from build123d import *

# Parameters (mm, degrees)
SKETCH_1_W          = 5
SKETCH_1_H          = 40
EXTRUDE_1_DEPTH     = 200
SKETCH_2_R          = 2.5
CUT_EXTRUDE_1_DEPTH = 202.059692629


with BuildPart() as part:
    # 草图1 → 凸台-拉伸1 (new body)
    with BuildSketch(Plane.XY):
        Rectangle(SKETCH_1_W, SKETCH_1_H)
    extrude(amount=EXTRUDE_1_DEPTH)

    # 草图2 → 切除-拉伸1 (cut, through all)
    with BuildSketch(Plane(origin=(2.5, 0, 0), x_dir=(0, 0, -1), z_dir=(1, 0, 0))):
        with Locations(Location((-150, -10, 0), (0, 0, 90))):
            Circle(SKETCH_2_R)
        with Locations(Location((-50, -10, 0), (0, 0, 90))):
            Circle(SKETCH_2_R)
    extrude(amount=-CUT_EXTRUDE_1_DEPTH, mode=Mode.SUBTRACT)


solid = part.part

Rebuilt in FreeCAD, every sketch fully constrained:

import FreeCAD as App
import Part
import Sketcher
from FreeCAD import Vector


def add_polygon(sketch, points):
    """Adds a closed chain of lines whose ends are joined by coincident constraints."""
    first, n = sketch.GeometryCount, len(points)
    for a, b in zip(points, points[1:] + points[:1]):
        sketch.addGeometry(Part.LineSegment(App.Vector(*a, 0), App.Vector(*b, 0)), False)
    for i in range(n):
        sketch.addConstraint(Sketcher.Constraint("Coincident", first + i, 2, first + (i + 1) % n, 1))

doc = App.newDocument("Part")
body = doc.addObject("PartDesign::Body", "Body")

sketch1 = body.newObject("Sketcher::SketchObject", "Sketch")
sketch1.AttachmentSupport = (doc.getObject("XY_Plane"), [""])
sketch1.MapMode = "FlatFace"
add_polygon(sketch1, [(-2, 20), (-2, -20), (2, -20), (2, 20)])
sketch1.addConstraint(Sketcher.Constraint("Vertical", 0))
sketch1.addConstraint(Sketcher.Constraint("Horizontal", 1))
sketch1.addConstraint(Sketcher.Constraint("Vertical", 2))
sketch1.addConstraint(Sketcher.Constraint("Horizontal", 3))
sketch1.addConstraint(Sketcher.Constraint("Symmetric", 0, 2, 2, 2, -1, 1))
sketch1.addConstraint(Sketcher.Constraint("DistanceX", 1, 1, 1, 2, 5.0))
sketch1.addConstraint(Sketcher.Constraint("DistanceY", 0, 2, 0, 1, 40.0))
pad1 = body.newObject("PartDesign::Pad", "Pad")
pad1.Profile = sketch1
pad1.Length = 200

sketch2 = body.newObject("Sketcher::SketchObject", "Sketch001")
sketch2.AttachmentSupport = (doc.getObject("YZ_Plane"), [""])
sketch2.MapMode = "FlatFace"
sketch2.AttachmentOffset = App.Placement(Vector(0, 0, 2.5), App.Rotation())
sketch2.addGeometry(Part.Circle(Vector(-10, 150, 0), Vector(0, 0, 1), 2.5), False)
sketch2.addGeometry(Part.Circle(Vector(-10, 50, 0), Vector(0, 0, 1), 2.5), False)
sketch2.addConstraint(Sketcher.Constraint("Equal", 0, 1))
sketch2.addConstraint(Sketcher.Constraint("Vertical", 0, 3, 1, 3))
sketch2.addConstraint(Sketcher.Constraint("Diameter", 0, 5.0))
sketch2.addConstraint(Sketcher.Constraint("DistanceX", 0, 3, -1, 1, 10.0))
sketch2.addConstraint(Sketcher.Constraint("DistanceY", -1, 1, 0, 3, 150.0))
sketch2.addConstraint(Sketcher.Constraint("DistanceY", -1, 1, 1, 3, 50.0))
pocket1 = body.newObject("PartDesign::Pocket", "Pocket")
pocket1.Profile = sketch2
pocket1.Type = "ThroughAll"

doc.recompute()
